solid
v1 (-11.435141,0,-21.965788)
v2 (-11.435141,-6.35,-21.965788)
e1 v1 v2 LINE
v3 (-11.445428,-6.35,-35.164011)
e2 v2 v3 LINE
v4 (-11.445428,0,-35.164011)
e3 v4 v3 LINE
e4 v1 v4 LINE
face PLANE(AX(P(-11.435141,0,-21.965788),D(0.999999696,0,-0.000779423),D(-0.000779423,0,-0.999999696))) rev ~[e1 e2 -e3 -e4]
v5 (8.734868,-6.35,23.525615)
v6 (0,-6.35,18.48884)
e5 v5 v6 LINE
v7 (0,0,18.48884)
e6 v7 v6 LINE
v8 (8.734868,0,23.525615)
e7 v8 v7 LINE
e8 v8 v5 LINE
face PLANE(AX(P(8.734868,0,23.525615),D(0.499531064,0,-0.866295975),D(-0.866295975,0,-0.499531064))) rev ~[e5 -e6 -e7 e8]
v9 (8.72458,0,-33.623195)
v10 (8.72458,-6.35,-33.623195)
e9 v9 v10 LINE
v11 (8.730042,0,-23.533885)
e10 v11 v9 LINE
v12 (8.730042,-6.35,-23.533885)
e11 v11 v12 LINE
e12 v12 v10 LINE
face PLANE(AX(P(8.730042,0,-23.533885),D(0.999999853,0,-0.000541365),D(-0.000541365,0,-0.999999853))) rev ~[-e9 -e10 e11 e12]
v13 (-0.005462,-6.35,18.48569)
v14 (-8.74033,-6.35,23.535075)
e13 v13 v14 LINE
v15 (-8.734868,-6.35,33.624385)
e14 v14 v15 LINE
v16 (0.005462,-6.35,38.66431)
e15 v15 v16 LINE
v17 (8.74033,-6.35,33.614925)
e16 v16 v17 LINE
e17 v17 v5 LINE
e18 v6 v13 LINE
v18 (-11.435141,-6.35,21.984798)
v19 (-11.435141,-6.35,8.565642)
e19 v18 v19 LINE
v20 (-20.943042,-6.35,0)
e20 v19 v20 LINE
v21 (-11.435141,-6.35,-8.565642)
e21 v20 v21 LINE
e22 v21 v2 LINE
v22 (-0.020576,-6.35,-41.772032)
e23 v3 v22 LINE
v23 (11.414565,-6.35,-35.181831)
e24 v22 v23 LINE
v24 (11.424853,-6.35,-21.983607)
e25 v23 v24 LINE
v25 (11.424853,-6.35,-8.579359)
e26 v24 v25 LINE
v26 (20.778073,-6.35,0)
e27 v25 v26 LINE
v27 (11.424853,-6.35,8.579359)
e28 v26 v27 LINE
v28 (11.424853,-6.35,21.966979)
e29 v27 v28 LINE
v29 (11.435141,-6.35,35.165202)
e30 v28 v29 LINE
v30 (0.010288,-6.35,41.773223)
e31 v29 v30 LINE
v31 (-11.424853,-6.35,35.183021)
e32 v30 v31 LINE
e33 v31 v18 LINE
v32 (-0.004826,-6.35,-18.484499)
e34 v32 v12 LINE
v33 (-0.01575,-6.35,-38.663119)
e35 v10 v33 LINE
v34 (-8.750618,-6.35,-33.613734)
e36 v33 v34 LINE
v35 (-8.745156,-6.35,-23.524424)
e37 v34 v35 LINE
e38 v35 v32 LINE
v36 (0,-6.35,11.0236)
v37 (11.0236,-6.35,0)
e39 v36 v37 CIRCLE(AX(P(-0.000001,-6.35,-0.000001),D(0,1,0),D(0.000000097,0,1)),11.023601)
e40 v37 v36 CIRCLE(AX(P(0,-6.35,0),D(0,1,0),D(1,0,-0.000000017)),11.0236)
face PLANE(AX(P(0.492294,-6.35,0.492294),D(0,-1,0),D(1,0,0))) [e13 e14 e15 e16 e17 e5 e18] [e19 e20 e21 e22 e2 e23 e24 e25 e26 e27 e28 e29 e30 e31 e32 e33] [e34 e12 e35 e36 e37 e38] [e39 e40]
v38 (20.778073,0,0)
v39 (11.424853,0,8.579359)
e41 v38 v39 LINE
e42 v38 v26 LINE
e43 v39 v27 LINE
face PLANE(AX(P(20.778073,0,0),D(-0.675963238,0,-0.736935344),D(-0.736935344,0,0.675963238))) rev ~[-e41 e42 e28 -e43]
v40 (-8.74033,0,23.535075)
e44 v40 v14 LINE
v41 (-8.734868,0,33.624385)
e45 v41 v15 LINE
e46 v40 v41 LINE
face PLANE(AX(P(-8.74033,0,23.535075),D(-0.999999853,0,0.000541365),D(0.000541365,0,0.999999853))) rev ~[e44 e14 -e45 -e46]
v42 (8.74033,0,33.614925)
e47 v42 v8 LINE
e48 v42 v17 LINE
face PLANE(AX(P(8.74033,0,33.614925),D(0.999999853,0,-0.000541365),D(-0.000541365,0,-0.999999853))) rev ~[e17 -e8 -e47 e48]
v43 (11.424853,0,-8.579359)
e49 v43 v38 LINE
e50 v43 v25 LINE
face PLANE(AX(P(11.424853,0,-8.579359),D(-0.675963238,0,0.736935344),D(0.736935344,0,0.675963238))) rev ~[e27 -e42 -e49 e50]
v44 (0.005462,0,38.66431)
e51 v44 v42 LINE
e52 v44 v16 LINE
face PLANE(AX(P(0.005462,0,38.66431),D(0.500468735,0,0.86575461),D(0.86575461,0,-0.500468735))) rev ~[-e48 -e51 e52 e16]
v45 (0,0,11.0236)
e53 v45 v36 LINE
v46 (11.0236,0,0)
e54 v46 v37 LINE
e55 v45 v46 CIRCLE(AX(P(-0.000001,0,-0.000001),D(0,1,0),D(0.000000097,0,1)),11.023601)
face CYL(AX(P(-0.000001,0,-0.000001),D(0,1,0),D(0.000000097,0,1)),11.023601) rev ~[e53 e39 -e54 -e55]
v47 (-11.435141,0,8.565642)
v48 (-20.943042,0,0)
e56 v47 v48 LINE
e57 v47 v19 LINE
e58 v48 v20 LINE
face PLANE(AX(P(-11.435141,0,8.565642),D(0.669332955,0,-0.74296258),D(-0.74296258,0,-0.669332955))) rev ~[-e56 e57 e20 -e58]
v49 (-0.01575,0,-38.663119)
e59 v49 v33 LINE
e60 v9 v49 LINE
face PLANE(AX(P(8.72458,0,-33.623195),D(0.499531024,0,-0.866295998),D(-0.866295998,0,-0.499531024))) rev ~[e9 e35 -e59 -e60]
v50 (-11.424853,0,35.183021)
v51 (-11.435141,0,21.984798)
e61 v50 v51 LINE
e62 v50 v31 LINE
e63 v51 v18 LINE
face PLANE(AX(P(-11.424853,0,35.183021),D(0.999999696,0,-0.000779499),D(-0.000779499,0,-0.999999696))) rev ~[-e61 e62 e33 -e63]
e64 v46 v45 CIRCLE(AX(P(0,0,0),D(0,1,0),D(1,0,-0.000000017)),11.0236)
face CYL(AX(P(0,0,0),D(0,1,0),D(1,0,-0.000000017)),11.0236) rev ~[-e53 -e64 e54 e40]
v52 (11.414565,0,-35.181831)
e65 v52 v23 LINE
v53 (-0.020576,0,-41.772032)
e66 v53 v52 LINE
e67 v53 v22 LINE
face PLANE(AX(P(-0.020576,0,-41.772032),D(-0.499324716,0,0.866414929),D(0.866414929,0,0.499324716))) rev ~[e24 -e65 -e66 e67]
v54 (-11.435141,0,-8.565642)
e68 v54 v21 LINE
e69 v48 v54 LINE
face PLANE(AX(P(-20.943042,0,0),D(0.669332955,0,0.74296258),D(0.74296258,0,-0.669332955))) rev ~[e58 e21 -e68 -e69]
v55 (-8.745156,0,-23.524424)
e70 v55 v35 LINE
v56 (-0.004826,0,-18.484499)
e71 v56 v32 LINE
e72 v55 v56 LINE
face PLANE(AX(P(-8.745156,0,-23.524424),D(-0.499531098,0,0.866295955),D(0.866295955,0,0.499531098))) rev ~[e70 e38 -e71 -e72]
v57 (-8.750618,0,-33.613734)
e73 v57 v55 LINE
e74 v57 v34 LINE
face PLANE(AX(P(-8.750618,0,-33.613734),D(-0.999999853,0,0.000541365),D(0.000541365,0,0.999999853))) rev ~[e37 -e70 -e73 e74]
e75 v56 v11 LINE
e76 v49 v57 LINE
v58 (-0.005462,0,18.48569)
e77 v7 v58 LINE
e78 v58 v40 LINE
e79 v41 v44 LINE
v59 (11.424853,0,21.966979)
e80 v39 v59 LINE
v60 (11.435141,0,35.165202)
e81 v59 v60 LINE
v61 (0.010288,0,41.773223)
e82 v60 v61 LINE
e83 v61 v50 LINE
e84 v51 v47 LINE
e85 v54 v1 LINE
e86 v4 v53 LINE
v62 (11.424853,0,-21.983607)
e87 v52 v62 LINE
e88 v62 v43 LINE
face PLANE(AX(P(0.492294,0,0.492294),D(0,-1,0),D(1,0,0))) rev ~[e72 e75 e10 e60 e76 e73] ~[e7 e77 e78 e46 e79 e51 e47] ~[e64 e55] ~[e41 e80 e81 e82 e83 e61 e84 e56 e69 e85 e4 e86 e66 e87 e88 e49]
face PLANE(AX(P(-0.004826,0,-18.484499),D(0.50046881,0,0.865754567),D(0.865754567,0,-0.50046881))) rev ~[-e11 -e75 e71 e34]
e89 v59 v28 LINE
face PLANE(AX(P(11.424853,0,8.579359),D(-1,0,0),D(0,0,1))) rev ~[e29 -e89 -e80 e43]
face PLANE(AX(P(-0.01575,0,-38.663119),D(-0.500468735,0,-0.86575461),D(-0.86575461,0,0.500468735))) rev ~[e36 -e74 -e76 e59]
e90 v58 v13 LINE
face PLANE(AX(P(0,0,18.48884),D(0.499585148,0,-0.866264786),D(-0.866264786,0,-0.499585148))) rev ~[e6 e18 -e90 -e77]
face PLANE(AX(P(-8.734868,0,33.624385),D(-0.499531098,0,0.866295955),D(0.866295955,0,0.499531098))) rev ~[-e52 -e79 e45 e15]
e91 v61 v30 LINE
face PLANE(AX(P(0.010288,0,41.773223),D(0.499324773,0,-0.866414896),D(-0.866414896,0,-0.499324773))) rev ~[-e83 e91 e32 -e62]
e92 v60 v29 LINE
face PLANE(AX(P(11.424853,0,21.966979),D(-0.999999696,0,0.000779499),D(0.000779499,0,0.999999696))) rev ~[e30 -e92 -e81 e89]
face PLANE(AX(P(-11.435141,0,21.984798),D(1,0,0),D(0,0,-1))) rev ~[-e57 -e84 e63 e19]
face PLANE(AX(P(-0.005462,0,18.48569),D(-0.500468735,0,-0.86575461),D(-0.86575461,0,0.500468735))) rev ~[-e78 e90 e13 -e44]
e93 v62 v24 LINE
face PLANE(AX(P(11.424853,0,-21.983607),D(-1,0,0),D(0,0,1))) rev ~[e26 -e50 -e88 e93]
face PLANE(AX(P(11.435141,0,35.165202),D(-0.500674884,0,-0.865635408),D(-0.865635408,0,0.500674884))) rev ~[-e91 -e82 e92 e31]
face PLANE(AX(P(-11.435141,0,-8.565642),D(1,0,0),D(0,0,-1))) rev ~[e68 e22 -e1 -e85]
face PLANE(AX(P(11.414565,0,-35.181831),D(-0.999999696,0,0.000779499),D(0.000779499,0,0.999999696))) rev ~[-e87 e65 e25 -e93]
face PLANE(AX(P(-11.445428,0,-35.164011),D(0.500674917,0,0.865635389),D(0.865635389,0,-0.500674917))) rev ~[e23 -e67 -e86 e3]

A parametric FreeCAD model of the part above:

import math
import FreeCAD as App
import Part
import Sketcher
Q = App.Units.Quantity

doc = App.newDocument("Part")
body = doc.addObject("PartDesign::Body", "Body")

sketch1 = body.newObject("Sketcher::SketchObject", "Sketch")
sketch1.AttachmentSupport = (doc.getObject("XZ_Plane"), [""])
sketch1.MapMode = "FlatFace"
sketch1.addGeometry(Part.LineSegment(App.Vector(-11.435, 21.985, 0), App.Vector(-11.435, 8.566, 0)), False)
sketch1.addGeometry(Part.LineSegment(App.Vector(-11.435, 8.566, 0), App.Vector(-20.943, 0, 0)), False)
sketch1.addGeometry(Part.LineSegment(App.Vector(-20.943, 0, 0), App.Vector(-11.435, -8.566, 0)), False)
sketch1.addGeometry(Part.LineSegment(App.Vector(-11.435, -8.566, 0), App.Vector(-11.435, -21.966, 0)), False)
sketch1.addGeometry(Part.LineSegment(App.Vector(-11.435, -21.966, 0), App.Vector(-11.445, -35.164, 0)), False)
sketch1.addGeometry(Part.LineSegment(App.Vector(-11.445, -35.164, 0), App.Vector(-0.021, -41.772, 0)), False)
sketch1.addGeometry(Part.LineSegment(App.Vector(-0.021, -41.772, 0), App.Vector(11.415, -35.182, 0)), False)
sketch1.addGeometry(Part.LineSegment(App.Vector(11.415, -35.182, 0), App.Vector(11.425, -21.984, 0)), False)
sketch1.addGeometry(Part.LineSegment(App.Vector(11.425, -21.984, 0), App.Vector(11.425, -8.579, 0)), False)
sketch1.addGeometry(Part.LineSegment(App.Vector(11.425, -8.579, 0), App.Vector(20.778, 0, 0)), False)
sketch1.addGeometry(Part.LineSegment(App.Vector(20.778, 0, 0), App.Vector(11.425, 8.579, 0)), False)
sketch1.addGeometry(Part.LineSegment(App.Vector(11.425, 8.579, 0), App.Vector(11.425, 21.967, 0)), False)
sketch1.addGeometry(Part.LineSegment(App.Vector(11.425, 21.967, 0), App.Vector(11.435, 35.165, 0)), False)
sketch1.addGeometry(Part.LineSegment(App.Vector(11.435, 35.165, 0), App.Vector(0.01, 41.773, 0)), False)
sketch1.addGeometry(Part.LineSegment(App.Vector(0.01, 41.773, 0), App.Vector(-11.425, 35.183, 0)), False)
sketch1.addGeometry(Part.LineSegment(App.Vector(-11.425, 35.183, 0), App.Vector(-11.435, 21.985, 0)), False)
sketch1.addGeometry(Part.LineSegment(App.Vector(-8.745, -23.524, 0), App.Vector(-0.005, -18.484, 0)), False)
sketch1.addGeometry(Part.LineSegment(App.Vector(-0.005, -18.484, 0), App.Vector(8.73, -23.534, 0)), False)
sketch1.addGeometry(Part.LineSegment(App.Vector(8.73, -23.534, 0), App.Vector(8.725, -33.623, 0)), False)
sketch1.addGeometry(Part.LineSegment(App.Vector(8.725, -33.623, 0), App.Vector(-0.016, -38.663, 0)), False)
sketch1.addGeometry(Part.LineSegment(App.Vector(-0.016, -38.663, 0), App.Vector(-8.751, -33.614, 0)), False)
sketch1.addGeometry(Part.LineSegment(App.Vector(-8.751, -33.614, 0), App.Vector(-8.745, -23.524, 0)), False)
sketch1.addGeometry(Part.ArcOfCircle(Part.Circle(App.Vector(0, 0, 0), App.Vector(0, 0, 1), 11.024), math.radians(90), math.radians(360)), False)
sketch1.addGeometry(Part.ArcOfCircle(Part.Circle(App.Vector(0, 0, 0), App.Vector(0, 0, 1), 11.024), math.radians(0), math.radians(90)), False)
sketch1.addGeometry(Part.LineSegment(App.Vector(8.74, 33.615, 0), App.Vector(8.735, 23.526, 0)), False)
sketch1.addGeometry(Part.LineSegment(App.Vector(8.735, 23.526, 0), App.Vector(0, 18.489, 0)), False)
sketch1.addGeometry(Part.LineSegment(App.Vector(0, 18.489, 0), App.Vector(-0.005, 18.486, 0)), False)
sketch1.addGeometry(Part.LineSegment(App.Vector(-0.005, 18.486, 0), App.Vector(-8.74, 23.535, 0)), False)
sketch1.addGeometry(Part.LineSegment(App.Vector(-8.74, 23.535, 0), App.Vector(-8.735, 33.624, 0)), False)
sketch1.addGeometry(Part.LineSegment(App.Vector(-8.735, 33.624, 0), App.Vector(0.005, 38.664, 0)), False)
sketch1.addGeometry(Part.LineSegment(App.Vector(0.005, 38.664, 0), App.Vector(8.74, 33.615, 0)), False)
sketch1.addConstraint(Sketcher.Constraint("Coincident", 0, 2, 1, 1))
sketch1.addConstraint(Sketcher.Constraint("Coincident", 1, 2, 2, 1))
sketch1.addConstraint(Sketcher.Constraint("Coincident", 2, 2, 3, 1))
sketch1.addConstraint(Sketcher.Constraint("Coincident", 3, 2, 4, 1))
sketch1.addConstraint(Sketcher.Constraint("Coincident", 4, 2, 5, 1))
sketch1.addConstraint(Sketcher.Constraint("Coincident", 5, 2, 6, 1))
sketch1.addConstraint(Sketcher.Constraint("Coincident", 6, 2, 7, 1))
sketch1.addConstraint(Sketcher.Constraint("Coincident", 7, 2, 8, 1))
sketch1.addConstraint(Sketcher.Constraint("Coincident", 8, 2, 9, 1))
sketch1.addConstraint(Sketcher.Constraint("Coincident", 9, 2, 10, 1))
sketch1.addConstraint(Sketcher.Constraint("Coincident", 10, 2, 11, 1))
sketch1.addConstraint(Sketcher.Constraint("Coincident", 11, 2, 12, 1))
sketch1.addConstraint(Sketcher.Constraint("Coincident", 12, 2, 13, 1))
sketch1.addConstraint(Sketcher.Constraint("Coincident", 13, 2, 14, 1))
sketch1.addConstraint(Sketcher.Constraint("Coincident", 14, 2, 15, 1))
sketch1.addConstraint(Sketcher.Constraint("Coincident", 15, 2, 0, 1))
sketch1.addConstraint(Sketcher.Constraint("Coincident", 16, 2, 17, 1))
sketch1.addConstraint(Sketcher.Constraint("Coincident", 17, 2, 18, 1))
sketch1.addConstraint(Sketcher.Constraint("Coincident", 18, 2, 19, 1))
sketch1.addConstraint(Sketcher.Constraint("Coincident", 19, 2, 20, 1))
sketch1.addConstraint(Sketcher.Constraint("Coincident", 20, 2, 21, 1))
sketch1.addConstraint(Sketcher.Constraint("Coincident", 21, 2, 16, 1))
sketch1.addConstraint(Sketcher.Constraint("Tangent", 22, 1, 23, 2))
sketch1.addConstraint(Sketcher.Constraint("Coincident", 23, 1, 22, 2))
sketch1.addConstraint(Sketcher.Constraint("Coincident", 24, 2, 25, 1))
sketch1.addConstraint(Sketcher.Constraint("Coincident", 25, 2, 26, 1))
sketch1.addConstraint(Sketcher.Constraint("Coincident", 26, 2, 27, 1))
sketch1.addConstraint(Sketcher.Constraint("Coincident", 27, 2, 28, 1))
sketch1.addConstraint(Sketcher.Constraint("Coincident", 28, 2, 29, 1))
sketch1.addConstraint(Sketcher.Constraint("Coincident", 29, 2, 30, 1))
sketch1.addConstraint(Sketcher.Constraint("Coincident", 30, 2, 24, 1))
sketch1.addConstraint(Sketcher.Constraint("Vertical", 0))
sketch1.addConstraint(Sketcher.Constraint("Vertical", 3))
sketch1.addConstraint(Sketcher.Constraint("Vertical", 8))
sketch1.addConstraint(Sketcher.Constraint("Vertical", 11))
sketch1.addConstraint(Sketcher.Constraint("Coincident", 22, 3, -1, 1))
sketch1.addConstraint(Sketcher.Constraint("Symmetric", 0, 2, 2, 2, -1))
sketch1.addConstraint(Sketcher.Constraint("Symmetric", 8, 2, 10, 2, -1))
sketch1.addConstraint(Sketcher.Constraint("PointOnObject", 1, 2, -1))
sketch1.addConstraint(Sketcher.Constraint("PointOnObject", 9, 2, -1))
sketch1.addConstraint(Sketcher.Constraint("PointOnObject", 22, 1, -2))
sketch1.addConstraint(Sketcher.Constraint("PointOnObject", 23, 1, -1))
sketch1.addConstraint(Sketcher.Constraint("PointOnObject", 25, 2, -2))
sketch1.addConstraint(Sketcher.Constraint("Parallel", 4, 7))
sketch1.addConstraint(Sketcher.Constraint("Parallel", 7, 12))
sketch1.addConstraint(Sketcher.Constraint("Parallel", 5, 13))
sketch1.addConstraint(Sketcher.Constraint("Parallel", 6, 14))
sketch1.addConstraint(Sketcher.Constraint("Parallel", 12, 15))
sketch1.addConstraint(Sketcher.Constraint("Parallel", 16, 19))
sketch1.addConstraint(Sketcher.Constraint("Parallel", 17, 20))
sketch1.addConstraint(Sketcher.Constraint("Parallel", 18, 21))
sketch1.addConstraint(Sketcher.Constraint("Parallel", 21, 24))
sketch1.addConstraint(Sketcher.Constraint("Parallel", 19, 25))
sketch1.addConstraint(Sketcher.Constraint("Parallel", 20, 27))
sketch1.addConstraint(Sketcher.Constraint("Parallel", 24, 28))
sketch1.addConstraint(Sketcher.Constraint("Parallel", 25, 29))
sketch1.addConstraint(Sketcher.Constraint("Parallel", 27, 30))
sketch1.addConstraint(Sketcher.Constraint("Equal", 4, 5))
sketch1.addConstraint(Sketcher.Constraint("Equal", 5, 6))
sketch1.addConstraint(Sketcher.Constraint("Equal", 6, 7))
sketch1.addConstraint(Sketcher.Constraint("Equal", 7, 12))
sketch1.addConstraint(Sketcher.Constraint("Equal", 12, 13))
sketch1.addConstraint(Sketcher.Constraint("Equal", 14, 15))
sketch1.addConstraint(Sketcher.Constraint("Equal", 16, 17))
sketch1.addConstraint(Sketcher.Constraint("Equal", 17, 18))
sketch1.addConstraint(Sketcher.Constraint("Equal", 18, 19))
sketch1.addConstraint(Sketcher.Constraint("Equal", 21, 24))
sketch1.addConstraint(Sketcher.Constraint("Equal", 24, 27))
sketch1.addConstraint(Sketcher.Constraint("Equal", 27, 28))
sketch1.addConstraint(Sketcher.Constraint("Equal", 28, 29))
sketch1.addConstraint(Sketcher.Constraint("Equal", 29, 30))
sketch1.addConstraint(Sketcher.Constraint("Radius", 22, Q("0.434 in")))
sketch1.addConstraint(Sketcher.Constraint("DistanceY", 11, 1, 11, 2, 13.38762))
sketch1.addConstraint(Sketcher.Constraint("DistanceY", -1, 1, 15, 2, 21.984798))
sketch1.addConstraint(Sketcher.Constraint("DistanceY", 16, 2, -1, 1, 18.484499))
sketch1.addConstraint(Sketcher.Constraint("DistanceX", 1, 2, 0, 2, 9.507901))
sketch1.addConstraint(Sketcher.Constraint("DistanceY", 5, 2, 6, 2, 6.590201))
sketch1.addConstraint(Sketcher.Constraint("DistanceY", 22, 3, 12, 2, 35.165202))
sketch1.addConstraint(Sketcher.Constraint("DistanceY", 5, 2, 20, 2, 8.158298))
sketch1.addConstraint(Sketcher.Constraint("DistanceY", 30, 2, 13, 2, 8.158298))
sketch1.addConstraint(Sketcher.Constraint("Distance", 1, 12.797281))
sketch1.addConstraint(Sketcher.Constraint("Distance", 7, 13.198228))
sketch1.addConstraint(Sketcher.Constraint("Distance", 9, 12.69205))
sketch1.addConstraint(Sketcher.Constraint("Distance", 16, 10.089312))
sketch1.addConstraint(Sketcher.Constraint("DistanceY", 3, 2, 3, 1, 13.400146))
sketch1.addConstraint(Sketcher.Constraint("DistanceX", 0, 2, -1, 1, 11.435141))
sketch1.addConstraint(Sketcher.Constraint("DistanceX", -1, 1, 12, 2, 11.435141))
sketch1.addConstraint(Sketcher.Constraint("DistanceX", -1, 1, 17, 2, 8.730042))
sketch1.addConstraint(Sketcher.Constraint("DistanceX", -1, 1, 18, 2, 8.72458))
sketch1.addConstraint(Sketcher.Constraint("DistanceY", 19, 2, -1, 1, 38.663119))
sketch1.addConstraint(Sketcher.Constraint("DistanceY", -1, 1, 25, 2, 18.48884))
pad1 = body.newObject("PartDesign::Pad", "Pad")
pad1.Profile = sketch1
pad1.Length = Q("0.25 in")

doc.recompute()
